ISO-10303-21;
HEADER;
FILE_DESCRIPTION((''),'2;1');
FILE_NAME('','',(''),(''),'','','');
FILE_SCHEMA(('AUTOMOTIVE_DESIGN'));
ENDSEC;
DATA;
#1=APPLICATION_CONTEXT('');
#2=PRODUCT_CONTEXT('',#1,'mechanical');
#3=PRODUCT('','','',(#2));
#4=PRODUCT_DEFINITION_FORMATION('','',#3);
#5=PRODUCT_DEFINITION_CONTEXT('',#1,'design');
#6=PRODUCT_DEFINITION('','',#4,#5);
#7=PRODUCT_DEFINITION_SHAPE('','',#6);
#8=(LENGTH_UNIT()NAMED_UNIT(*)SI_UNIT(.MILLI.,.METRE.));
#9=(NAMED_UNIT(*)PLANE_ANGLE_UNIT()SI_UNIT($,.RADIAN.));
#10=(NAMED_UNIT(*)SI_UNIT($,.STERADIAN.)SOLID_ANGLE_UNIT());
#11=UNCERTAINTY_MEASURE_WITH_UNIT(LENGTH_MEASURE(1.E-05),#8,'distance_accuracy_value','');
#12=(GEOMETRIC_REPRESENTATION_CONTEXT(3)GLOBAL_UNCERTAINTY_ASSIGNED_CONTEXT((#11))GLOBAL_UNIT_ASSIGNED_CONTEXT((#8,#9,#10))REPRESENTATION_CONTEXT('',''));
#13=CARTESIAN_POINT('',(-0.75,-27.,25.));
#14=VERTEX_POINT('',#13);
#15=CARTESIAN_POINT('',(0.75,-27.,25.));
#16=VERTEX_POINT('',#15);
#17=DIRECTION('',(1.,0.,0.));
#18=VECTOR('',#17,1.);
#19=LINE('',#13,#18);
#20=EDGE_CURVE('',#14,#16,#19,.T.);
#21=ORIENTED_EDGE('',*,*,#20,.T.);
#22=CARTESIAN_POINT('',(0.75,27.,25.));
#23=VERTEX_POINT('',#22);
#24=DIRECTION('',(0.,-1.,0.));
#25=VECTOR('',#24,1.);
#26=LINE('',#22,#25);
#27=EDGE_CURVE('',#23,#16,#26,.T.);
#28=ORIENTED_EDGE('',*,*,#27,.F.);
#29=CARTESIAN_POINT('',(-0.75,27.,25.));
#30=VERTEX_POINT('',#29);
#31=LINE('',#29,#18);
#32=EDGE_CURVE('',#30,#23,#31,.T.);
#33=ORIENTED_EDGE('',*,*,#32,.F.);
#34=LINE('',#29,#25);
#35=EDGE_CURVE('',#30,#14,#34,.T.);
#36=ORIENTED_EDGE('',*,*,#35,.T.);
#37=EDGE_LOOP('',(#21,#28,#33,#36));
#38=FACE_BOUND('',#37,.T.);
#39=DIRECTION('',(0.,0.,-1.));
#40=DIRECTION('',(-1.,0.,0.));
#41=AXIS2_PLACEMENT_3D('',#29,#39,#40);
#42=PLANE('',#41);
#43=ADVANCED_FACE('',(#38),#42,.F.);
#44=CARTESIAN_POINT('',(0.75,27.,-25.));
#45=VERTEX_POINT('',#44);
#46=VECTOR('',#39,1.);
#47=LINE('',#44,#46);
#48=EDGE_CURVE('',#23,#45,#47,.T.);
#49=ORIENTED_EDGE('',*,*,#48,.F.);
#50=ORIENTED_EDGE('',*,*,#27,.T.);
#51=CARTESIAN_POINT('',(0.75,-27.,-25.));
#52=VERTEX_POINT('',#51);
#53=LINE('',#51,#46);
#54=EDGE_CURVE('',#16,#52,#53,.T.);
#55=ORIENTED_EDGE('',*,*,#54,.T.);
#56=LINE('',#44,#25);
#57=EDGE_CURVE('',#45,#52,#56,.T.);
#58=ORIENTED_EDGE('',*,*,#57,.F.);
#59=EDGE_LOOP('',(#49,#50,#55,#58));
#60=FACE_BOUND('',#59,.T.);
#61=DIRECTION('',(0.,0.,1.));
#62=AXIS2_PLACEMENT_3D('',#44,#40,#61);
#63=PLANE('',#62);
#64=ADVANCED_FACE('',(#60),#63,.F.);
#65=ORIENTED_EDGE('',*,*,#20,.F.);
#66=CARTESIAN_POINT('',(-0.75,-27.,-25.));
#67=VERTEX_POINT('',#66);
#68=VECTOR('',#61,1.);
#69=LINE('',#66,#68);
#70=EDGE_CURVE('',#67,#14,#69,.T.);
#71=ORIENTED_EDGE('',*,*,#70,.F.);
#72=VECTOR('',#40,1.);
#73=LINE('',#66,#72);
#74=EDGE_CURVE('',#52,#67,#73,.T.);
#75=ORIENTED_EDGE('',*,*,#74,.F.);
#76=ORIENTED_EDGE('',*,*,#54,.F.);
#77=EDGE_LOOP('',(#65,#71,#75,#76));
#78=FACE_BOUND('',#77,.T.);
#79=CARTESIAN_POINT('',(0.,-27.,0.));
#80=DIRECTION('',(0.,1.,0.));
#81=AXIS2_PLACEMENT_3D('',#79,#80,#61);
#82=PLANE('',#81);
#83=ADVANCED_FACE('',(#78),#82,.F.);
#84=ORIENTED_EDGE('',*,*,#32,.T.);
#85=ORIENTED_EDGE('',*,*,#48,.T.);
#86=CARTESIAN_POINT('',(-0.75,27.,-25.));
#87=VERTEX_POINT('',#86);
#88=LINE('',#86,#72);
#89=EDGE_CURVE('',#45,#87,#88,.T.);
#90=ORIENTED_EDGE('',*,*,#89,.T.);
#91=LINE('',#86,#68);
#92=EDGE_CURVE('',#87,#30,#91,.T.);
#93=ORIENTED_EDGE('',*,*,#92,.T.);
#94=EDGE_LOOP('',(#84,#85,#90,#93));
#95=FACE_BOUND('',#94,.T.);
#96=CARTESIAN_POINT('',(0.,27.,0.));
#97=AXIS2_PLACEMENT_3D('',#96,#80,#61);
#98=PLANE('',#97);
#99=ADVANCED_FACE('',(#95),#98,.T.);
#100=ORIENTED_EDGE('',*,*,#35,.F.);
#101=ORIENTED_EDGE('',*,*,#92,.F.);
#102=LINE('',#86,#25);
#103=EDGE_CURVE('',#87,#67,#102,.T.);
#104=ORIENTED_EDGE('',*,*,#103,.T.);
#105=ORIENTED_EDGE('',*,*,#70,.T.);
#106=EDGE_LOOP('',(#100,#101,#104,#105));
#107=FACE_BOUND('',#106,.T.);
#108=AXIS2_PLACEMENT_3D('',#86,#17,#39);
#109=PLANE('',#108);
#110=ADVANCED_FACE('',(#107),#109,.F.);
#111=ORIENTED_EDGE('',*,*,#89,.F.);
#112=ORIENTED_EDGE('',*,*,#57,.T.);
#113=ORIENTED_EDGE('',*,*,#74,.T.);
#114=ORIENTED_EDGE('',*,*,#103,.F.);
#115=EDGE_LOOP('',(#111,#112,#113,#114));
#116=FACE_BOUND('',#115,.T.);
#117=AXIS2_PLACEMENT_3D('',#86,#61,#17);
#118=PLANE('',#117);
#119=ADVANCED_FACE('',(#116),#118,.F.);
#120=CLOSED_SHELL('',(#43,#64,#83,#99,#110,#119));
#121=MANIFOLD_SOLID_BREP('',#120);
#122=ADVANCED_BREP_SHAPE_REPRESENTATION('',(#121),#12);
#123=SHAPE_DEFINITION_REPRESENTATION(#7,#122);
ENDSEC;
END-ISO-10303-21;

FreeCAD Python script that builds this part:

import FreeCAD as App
import Part
import Sketcher

V = App.Vector

doc = App.newDocument("Part")
body = doc.addObject("PartDesign::Body", "Body")

# Sketch on XZ plane
sketch1 = doc.addObject("Sketcher::SketchObject", "Sketch")
body.addObject(sketch1)
sketch1.AttachmentSupport = (doc.XZ_Plane, [""])
sketch1.MapMode = "FlatFace"
sketch1.addGeometry([
    Part.LineSegment(V(-0.75, -25, 0), V(-0.75, 25, 0)),
    Part.LineSegment(V(-0.75, 25, 0), V(0.75, 25, 0)),
    Part.LineSegment(V(0.75, 25, 0), V(0.75, -25, 0)),
    Part.LineSegment(V(0.75, -25, 0), V(-0.75, -25, 0)),
], False)
sketch1.addConstraint([
    Sketcher.Constraint("Coincident", 0, 2, 1, 1),
    Sketcher.Constraint("Coincident", 1, 2, 2, 1),
    Sketcher.Constraint("Coincident", 2, 2, 3, 1),
    Sketcher.Constraint("Coincident", 3, 2, 0, 1),
    Sketcher.Constraint("Vertical", 0),
    Sketcher.Constraint("Horizontal", 1),
    Sketcher.Constraint("Vertical", 2),
    Sketcher.Constraint("Horizontal", 3),
    Sketcher.Constraint("Symmetric", 0, 2, 2, 2, -1, 1),
    Sketcher.Constraint("DistanceY", 0, 1, 0, 2, 50.0),
    Sketcher.Constraint("DistanceX", 1, 1, 1, 2, 1.5),
])
pad1 = doc.addObject("PartDesign::Pad", "Pad")
body.addObject(pad1)
pad1.Profile = sketch1
pad1.Length = 54
pad1.Midplane = True

doc.recompute()
